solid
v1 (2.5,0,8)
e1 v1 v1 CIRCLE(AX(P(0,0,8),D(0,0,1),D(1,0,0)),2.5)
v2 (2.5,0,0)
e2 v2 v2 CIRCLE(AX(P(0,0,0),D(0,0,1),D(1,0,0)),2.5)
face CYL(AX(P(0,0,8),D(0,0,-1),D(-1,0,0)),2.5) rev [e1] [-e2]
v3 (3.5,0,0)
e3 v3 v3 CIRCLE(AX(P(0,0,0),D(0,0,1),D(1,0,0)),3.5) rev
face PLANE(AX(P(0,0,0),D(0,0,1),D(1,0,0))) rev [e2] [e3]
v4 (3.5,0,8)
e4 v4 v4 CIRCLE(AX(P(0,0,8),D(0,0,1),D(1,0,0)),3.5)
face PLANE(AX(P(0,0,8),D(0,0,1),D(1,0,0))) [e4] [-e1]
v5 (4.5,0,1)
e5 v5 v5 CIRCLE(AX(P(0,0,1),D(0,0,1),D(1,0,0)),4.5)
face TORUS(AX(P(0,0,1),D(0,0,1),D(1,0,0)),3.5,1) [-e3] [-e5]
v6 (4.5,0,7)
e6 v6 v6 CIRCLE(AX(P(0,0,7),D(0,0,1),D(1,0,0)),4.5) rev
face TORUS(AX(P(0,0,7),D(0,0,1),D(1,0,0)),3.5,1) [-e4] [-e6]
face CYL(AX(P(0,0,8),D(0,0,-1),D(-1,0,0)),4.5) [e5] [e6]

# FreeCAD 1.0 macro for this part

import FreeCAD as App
import Part
import Sketcher
Q = App.Units.Quantity


def edges_at(feature, points):
    """Names of the edges that pass closest to the given points."""
    edges = feature.Shape.Edges
    near = lambda p: min(range(len(edges)), key=lambda i: edges[i].distToShape(Part.Vertex(*p))[0])
    return sorted({f"Edge{near(p) + 1}" for p in points})

doc = App.newDocument("Part")
body = doc.addObject("PartDesign::Body", "Body")

# Sketch on XY plane
sketch1 = doc.addObject("Sketcher::SketchObject", "Sketch")
body.addObject(sketch1)
sketch1.AttachmentSupport = (doc.XY_Plane, [""])
sketch1.MapMode = "FlatFace"
sketch1.addGeometry([
    Part.Circle(App.Vector(0, 0, 0), App.Vector(0, 0, 1), 4.5),
    Part.Circle(App.Vector(0, 0, 0), App.Vector(0, 0, 1), 2.5),
], False)
sketch1.addConstraint([
    Sketcher.Constraint("Coincident", 0, 3, -1, 1),
    Sketcher.Constraint("Coincident", 1, 3, -1, 1),
    Sketcher.Constraint("Diameter", 0, Q("9 mm")),
    Sketcher.Constraint("Diameter", 1, Q("5 mm")),
])
pad1 = doc.addObject("PartDesign::Pad", "Pad")
body.addObject(pad1)
pad1.Profile = sketch1
pad1.Length = 8
doc.recompute()

fillet = doc.addObject("PartDesign::Fillet", "Fillet")
body.addObject(fillet)
fillet.Base = (pad1, edges_at(pad1, [(-4.5, 0, 0), (-4.5, 0, 8)]))
fillet.Radius = 1

doc.recompute()
